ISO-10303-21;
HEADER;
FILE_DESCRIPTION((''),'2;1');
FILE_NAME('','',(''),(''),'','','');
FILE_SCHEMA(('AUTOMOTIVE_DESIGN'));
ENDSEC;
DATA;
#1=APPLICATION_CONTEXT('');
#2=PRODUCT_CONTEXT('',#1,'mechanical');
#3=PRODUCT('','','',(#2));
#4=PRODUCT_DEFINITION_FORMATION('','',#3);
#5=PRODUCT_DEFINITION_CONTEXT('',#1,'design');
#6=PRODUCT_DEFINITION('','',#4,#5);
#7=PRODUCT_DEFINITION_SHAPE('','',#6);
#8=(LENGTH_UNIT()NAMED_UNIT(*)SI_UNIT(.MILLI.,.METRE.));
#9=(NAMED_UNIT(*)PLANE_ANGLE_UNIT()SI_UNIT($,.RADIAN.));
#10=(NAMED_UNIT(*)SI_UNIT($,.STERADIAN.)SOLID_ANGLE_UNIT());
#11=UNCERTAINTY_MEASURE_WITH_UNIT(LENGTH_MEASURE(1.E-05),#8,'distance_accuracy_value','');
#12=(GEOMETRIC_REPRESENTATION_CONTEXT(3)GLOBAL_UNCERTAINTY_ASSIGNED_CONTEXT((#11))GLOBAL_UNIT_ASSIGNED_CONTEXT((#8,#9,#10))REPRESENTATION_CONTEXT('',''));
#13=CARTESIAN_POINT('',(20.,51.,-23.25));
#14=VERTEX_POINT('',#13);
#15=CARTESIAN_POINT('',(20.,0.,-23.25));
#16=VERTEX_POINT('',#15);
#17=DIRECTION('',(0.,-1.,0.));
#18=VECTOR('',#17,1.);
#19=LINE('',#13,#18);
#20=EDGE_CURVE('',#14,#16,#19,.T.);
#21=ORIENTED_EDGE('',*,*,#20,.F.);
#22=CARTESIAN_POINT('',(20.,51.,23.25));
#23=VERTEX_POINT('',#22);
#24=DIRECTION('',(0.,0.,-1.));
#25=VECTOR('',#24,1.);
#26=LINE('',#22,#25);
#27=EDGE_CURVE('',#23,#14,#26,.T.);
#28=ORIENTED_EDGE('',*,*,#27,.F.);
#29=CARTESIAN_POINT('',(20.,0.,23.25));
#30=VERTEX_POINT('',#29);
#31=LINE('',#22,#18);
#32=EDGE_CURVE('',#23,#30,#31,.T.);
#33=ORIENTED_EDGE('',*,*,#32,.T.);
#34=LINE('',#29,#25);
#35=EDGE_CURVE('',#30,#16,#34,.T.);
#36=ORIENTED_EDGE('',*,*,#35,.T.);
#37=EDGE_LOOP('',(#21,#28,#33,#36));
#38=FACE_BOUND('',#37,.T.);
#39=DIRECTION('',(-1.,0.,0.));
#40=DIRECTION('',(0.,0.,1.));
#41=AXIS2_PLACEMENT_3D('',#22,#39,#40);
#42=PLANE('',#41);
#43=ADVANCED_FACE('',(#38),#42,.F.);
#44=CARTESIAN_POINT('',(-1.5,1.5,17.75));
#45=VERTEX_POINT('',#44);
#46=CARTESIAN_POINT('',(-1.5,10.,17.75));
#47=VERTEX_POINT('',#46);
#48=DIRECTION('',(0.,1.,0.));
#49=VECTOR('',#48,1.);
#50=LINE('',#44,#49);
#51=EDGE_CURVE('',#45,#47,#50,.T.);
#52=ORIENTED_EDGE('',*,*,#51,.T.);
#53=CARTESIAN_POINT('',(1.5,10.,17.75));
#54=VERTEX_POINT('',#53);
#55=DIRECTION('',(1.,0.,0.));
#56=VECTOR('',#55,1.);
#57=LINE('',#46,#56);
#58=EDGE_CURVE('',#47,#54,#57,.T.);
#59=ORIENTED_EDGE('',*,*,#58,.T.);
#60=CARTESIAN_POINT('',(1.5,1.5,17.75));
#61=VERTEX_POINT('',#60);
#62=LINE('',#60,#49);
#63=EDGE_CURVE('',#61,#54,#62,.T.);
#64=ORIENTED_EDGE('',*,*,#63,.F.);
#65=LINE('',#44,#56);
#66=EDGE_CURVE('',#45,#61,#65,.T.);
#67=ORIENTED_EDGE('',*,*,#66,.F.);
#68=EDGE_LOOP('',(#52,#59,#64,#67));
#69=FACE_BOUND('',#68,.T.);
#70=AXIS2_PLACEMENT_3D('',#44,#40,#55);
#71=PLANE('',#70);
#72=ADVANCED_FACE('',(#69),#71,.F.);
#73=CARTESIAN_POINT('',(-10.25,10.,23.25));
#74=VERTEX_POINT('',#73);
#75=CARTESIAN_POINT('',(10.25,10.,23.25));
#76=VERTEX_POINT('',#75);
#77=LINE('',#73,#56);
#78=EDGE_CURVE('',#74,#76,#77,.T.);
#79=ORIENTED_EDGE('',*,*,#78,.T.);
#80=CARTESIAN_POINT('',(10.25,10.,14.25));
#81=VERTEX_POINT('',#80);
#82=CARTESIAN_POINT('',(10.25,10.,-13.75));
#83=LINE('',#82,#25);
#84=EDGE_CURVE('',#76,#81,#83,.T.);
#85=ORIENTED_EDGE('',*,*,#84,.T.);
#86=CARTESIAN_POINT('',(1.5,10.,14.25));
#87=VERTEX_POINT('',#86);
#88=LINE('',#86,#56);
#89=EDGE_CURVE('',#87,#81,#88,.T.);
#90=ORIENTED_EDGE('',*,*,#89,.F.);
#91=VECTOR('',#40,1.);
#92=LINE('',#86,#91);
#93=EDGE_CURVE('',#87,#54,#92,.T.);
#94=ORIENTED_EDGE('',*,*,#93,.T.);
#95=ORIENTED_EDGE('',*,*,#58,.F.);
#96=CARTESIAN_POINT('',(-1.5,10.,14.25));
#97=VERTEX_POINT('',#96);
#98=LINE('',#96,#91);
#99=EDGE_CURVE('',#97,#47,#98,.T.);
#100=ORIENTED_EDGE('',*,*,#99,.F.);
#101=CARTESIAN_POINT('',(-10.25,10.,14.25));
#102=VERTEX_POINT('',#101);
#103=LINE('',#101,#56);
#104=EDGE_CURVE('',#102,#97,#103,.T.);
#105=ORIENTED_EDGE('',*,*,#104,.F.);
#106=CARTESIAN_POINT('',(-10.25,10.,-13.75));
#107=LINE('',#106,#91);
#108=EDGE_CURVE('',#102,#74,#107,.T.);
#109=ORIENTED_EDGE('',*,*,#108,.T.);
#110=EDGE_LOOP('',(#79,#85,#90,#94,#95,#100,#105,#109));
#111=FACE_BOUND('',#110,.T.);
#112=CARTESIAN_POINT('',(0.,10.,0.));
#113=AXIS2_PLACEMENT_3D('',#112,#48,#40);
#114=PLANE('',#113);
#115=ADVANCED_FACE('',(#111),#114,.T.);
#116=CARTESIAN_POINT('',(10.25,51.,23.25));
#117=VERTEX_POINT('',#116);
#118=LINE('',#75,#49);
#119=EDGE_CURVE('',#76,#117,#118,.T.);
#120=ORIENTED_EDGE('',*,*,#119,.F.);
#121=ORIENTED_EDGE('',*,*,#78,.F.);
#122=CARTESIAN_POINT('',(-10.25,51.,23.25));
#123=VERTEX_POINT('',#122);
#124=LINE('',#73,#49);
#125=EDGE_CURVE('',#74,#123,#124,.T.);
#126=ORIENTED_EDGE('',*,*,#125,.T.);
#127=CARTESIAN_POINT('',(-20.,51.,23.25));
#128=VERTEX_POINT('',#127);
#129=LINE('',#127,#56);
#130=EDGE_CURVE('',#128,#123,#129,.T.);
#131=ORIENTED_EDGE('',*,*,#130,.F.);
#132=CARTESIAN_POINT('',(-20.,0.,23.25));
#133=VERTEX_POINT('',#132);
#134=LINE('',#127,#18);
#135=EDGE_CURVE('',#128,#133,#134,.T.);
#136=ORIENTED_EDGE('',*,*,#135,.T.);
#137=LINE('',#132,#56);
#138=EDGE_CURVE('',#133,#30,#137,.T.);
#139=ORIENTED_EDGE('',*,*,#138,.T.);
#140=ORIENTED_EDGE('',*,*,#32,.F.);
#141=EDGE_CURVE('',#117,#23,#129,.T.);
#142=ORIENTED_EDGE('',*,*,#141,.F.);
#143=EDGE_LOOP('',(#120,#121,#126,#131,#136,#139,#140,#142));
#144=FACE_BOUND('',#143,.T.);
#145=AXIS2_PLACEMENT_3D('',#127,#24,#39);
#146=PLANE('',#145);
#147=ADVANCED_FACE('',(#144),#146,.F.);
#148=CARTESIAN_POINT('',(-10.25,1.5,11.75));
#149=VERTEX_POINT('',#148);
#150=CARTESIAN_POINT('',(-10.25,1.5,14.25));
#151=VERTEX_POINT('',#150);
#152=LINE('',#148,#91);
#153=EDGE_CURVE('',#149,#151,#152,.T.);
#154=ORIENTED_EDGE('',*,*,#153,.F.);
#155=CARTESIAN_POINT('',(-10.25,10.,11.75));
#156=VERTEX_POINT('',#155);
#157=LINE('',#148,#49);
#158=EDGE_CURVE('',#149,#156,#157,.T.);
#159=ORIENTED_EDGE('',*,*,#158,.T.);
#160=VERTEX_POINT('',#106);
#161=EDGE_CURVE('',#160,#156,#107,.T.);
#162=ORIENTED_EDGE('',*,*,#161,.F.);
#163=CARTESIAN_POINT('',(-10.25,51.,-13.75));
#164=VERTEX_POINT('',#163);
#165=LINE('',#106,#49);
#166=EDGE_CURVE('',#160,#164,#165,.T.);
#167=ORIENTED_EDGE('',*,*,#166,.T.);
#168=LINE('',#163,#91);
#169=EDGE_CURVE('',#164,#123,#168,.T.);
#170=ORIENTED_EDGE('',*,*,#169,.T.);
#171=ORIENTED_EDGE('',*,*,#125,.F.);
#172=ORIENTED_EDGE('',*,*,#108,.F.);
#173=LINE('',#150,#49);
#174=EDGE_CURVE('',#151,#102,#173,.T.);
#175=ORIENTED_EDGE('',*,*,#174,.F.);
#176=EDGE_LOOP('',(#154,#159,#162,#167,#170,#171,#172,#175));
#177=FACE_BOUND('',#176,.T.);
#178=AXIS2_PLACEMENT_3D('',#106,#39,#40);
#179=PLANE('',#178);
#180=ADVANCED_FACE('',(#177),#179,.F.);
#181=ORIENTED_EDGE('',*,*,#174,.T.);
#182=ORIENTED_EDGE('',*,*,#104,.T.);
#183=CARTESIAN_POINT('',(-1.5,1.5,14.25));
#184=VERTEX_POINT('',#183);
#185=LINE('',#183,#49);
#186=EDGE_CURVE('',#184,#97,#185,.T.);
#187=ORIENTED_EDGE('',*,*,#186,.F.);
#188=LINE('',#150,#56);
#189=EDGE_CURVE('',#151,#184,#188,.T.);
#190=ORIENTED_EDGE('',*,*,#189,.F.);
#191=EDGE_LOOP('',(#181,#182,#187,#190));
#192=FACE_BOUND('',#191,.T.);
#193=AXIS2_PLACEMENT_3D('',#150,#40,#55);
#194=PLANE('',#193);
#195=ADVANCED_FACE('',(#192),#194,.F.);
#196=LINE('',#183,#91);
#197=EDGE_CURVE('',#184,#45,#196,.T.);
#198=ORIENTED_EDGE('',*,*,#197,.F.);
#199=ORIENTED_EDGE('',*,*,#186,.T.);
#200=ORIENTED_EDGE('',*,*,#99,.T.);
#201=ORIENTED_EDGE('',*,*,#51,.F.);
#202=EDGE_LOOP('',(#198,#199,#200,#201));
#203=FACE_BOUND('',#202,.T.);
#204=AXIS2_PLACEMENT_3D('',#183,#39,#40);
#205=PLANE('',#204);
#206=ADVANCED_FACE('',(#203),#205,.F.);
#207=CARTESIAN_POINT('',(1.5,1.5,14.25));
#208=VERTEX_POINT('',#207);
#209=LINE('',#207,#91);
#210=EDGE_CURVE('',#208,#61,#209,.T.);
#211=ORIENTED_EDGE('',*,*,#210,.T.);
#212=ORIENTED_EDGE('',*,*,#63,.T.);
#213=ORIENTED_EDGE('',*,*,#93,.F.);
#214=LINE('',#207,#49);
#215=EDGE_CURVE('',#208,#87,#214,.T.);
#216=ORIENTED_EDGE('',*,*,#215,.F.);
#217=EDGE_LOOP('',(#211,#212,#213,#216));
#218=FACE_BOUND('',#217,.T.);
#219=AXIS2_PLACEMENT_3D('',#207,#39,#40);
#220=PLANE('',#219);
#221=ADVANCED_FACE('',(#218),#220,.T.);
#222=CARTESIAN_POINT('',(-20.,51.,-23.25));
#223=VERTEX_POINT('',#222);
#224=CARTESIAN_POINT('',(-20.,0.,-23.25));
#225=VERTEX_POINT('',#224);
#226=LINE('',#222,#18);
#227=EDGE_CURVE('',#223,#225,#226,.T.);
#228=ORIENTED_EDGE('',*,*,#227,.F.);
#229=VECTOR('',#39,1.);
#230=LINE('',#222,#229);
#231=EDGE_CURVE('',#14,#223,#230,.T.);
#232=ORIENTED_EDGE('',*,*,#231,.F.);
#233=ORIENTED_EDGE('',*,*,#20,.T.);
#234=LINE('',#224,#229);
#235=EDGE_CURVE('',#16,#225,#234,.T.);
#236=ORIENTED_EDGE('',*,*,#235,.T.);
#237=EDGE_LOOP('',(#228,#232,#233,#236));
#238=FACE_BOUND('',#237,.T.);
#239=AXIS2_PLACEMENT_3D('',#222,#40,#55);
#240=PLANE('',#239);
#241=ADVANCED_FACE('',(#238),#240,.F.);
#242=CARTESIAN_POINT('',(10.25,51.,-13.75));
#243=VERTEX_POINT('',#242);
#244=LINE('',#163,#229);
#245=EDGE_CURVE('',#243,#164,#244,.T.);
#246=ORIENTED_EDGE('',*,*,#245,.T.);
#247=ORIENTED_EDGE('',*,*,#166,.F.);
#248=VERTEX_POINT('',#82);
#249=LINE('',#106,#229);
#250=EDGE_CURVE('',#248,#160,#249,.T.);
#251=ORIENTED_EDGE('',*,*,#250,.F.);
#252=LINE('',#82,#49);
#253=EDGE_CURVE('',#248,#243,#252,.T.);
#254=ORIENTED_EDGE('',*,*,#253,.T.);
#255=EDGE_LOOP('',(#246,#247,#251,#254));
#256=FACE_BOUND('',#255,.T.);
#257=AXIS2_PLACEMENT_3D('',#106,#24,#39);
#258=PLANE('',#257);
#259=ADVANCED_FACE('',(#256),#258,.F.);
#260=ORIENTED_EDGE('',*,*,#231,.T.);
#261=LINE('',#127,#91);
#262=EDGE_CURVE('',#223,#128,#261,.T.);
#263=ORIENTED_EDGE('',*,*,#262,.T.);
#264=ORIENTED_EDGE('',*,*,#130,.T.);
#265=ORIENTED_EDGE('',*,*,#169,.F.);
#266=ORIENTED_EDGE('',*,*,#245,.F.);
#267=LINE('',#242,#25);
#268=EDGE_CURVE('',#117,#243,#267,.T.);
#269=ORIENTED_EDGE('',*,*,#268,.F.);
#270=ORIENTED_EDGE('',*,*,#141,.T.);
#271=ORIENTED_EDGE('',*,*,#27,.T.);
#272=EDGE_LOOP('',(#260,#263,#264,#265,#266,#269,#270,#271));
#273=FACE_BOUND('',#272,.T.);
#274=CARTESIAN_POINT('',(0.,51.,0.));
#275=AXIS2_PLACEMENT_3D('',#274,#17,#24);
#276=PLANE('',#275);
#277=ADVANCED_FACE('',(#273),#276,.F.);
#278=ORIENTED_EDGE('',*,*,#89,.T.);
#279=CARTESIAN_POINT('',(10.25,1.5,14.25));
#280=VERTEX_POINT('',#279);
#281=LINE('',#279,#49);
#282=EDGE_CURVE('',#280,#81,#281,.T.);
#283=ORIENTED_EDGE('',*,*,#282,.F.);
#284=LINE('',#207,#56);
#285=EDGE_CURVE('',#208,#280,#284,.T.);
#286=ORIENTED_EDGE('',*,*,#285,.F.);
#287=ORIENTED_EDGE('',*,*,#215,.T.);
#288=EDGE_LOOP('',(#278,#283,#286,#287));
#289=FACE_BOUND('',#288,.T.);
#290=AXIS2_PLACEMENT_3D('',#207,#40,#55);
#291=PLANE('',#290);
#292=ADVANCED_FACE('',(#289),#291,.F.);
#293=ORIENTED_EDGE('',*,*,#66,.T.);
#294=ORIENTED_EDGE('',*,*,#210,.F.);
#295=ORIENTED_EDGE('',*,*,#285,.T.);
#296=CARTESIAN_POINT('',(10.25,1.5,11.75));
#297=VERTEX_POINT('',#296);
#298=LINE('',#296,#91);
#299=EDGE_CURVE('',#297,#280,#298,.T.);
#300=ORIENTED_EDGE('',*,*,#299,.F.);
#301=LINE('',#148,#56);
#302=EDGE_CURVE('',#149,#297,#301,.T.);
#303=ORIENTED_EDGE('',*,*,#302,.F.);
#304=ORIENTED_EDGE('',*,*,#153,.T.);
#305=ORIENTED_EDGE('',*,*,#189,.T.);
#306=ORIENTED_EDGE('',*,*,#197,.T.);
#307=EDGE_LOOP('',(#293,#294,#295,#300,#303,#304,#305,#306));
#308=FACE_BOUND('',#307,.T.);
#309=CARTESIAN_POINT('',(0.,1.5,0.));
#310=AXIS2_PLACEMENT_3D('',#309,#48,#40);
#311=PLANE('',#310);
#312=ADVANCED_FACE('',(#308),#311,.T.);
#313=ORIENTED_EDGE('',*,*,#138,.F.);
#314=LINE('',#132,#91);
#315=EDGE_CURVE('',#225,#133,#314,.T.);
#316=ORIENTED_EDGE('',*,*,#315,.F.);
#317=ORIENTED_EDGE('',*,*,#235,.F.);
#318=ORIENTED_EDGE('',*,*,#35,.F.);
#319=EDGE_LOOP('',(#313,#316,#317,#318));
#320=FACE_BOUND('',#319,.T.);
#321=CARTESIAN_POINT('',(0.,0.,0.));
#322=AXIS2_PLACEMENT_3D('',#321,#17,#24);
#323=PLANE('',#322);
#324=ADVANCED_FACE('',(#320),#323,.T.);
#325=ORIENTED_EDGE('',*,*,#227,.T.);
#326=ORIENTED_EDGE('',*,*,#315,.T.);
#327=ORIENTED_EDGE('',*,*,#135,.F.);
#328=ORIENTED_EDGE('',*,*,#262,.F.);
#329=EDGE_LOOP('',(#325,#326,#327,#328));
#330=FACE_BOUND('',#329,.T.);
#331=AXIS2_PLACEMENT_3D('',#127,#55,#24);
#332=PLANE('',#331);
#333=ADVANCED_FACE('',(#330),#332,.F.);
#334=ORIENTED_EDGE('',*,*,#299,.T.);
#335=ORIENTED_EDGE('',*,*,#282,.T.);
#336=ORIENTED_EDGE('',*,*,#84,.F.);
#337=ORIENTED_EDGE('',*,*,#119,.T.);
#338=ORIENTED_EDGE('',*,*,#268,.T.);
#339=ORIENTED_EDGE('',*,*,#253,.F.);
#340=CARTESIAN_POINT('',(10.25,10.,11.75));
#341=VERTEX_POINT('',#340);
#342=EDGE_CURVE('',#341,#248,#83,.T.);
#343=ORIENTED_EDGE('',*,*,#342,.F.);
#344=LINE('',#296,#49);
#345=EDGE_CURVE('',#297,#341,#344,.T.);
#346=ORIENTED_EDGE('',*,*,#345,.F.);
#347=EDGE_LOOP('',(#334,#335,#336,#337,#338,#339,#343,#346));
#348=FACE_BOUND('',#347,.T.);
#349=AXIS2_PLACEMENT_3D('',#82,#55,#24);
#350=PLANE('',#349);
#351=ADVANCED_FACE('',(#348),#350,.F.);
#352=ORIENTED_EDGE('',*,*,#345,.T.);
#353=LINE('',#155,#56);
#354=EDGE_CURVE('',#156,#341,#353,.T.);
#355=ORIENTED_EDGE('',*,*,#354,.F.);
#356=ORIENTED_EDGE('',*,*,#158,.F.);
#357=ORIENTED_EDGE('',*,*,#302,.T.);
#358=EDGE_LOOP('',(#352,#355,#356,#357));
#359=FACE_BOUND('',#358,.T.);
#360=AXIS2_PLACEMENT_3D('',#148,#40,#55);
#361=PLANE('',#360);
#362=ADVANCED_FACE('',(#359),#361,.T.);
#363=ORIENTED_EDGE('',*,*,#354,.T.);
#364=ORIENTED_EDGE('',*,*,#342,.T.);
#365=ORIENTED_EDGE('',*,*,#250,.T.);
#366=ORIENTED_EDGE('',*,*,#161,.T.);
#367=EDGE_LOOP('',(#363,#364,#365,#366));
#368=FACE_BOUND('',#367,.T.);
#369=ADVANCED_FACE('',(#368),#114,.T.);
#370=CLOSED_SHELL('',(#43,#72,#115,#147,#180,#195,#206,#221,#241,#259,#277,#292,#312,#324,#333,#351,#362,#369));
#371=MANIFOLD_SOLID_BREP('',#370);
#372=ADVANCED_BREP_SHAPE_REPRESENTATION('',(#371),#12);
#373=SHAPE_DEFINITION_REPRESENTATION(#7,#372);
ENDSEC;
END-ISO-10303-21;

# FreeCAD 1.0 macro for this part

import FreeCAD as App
import Part
import Sketcher
from FreeCAD import Vector

doc = App.newDocument("Part")
params = doc.addObject("Spreadsheet::Sheet", "Params")
for row, (alias, value) in enumerate([
    ("sketch1_width", "40 mm"),
    ("sketch1_height", "46.5 mm"),
    ("pad1_length", "51 mm"),
    ("sketch2_height", "37 mm"),
    ("sketch2_width", "20.5 mm"),
    ("pocket1_length", "41 mm"),
    ("sketch3_width", "3 mm"),
    ("sketch3_width2", "20.5 mm"),
    ("sketch3_height", "2.5 mm"),
    ("sketch3_height2", "3.5 mm"),
    ("pocket2_length", "8.5 mm"),
], start=1):
    params.set(f"A{row}", alias)
    params.set(f"B{row}", "=" + value)
    params.setAlias(f"B{row}", alias)

body = doc.addObject("PartDesign::Body", "Body")

sketch1 = body.newObject("Sketcher::SketchObject", "Sketch")
sketch1.AttachmentSupport = (doc.getObject("XZ_Plane"), [""])
sketch1.MapMode = "FlatFace"
sketch1.addGeometry([
    Part.LineSegment(Vector(-20, -23.25, 0), Vector(-20, 23.25, 0)),
    Part.LineSegment(Vector(-20, 23.25, 0), Vector(20, 23.25, 0)),
    Part.LineSegment(Vector(20, 23.25, 0), Vector(20, -23.25, 0)),
    Part.LineSegment(Vector(20, -23.25, 0), Vector(-20, -23.25, 0)),
], False)
sketch1.addConstraint([
    Sketcher.Constraint("Coincident", 0, 2, 1, 1),
    Sketcher.Constraint("Coincident", 1, 2, 2, 1),
    Sketcher.Constraint("Coincident", 2, 2, 3, 1),
    Sketcher.Constraint("Coincident", 3, 2, 0, 1),
    Sketcher.Constraint("Vertical", 0),
    Sketcher.Constraint("Horizontal", 1),
    Sketcher.Constraint("Vertical", 2),
    Sketcher.Constraint("Horizontal", 3),
    Sketcher.Constraint("Symmetric", 0, 2, 2, 2, -1, 1),
    Sketcher.Constraint("DistanceX", 1, 1, 1, 2, 40.0),
    Sketcher.Constraint("DistanceY", 0, 1, 0, 2, 46.5),
])
sketch1.setExpression("Constraints[9]", "Params.sketch1_width")
sketch1.setExpression("Constraints[10]", "Params.sketch1_height")
pad1 = body.newObject("PartDesign::Pad", "Pad")
pad1.Profile = sketch1
pad1.setExpression("Length", "Params.pad1_length")
pad1.Reversed = True

sketch2 = body.newObject("Sketcher::SketchObject", "Sketch001")
sketch2.AttachmentSupport = (doc.getObject("XZ_Plane"), [""])
sketch2.MapMode = "FlatFace"
sketch2.AttachmentOffset = App.Placement(Vector(0, 0, -51), App.Rotation())
sketch2.addGeometry([
    Part.LineSegment(Vector(-10.25, -13.75, 0), Vector(-10.25, 23.25, 0)),
    Part.LineSegment(Vector(-10.25, 23.25, 0), Vector(10.25, 23.25, 0)),
    Part.LineSegment(Vector(10.25, 23.25, 0), Vector(10.25, -13.75, 0)),
    Part.LineSegment(Vector(10.25, -13.75, 0), Vector(-10.25, -13.75, 0)),
], False)
sketch2.addConstraint([
    Sketcher.Constraint("Coincident", 0, 2, 1, 1),
    Sketcher.Constraint("Coincident", 1, 2, 2, 1),
    Sketcher.Constraint("Coincident", 2, 2, 3, 1),
    Sketcher.Constraint("Coincident", 3, 2, 0, 1),
    Sketcher.Constraint("Vertical", 0),
    Sketcher.Constraint("Horizontal", 1),
    Sketcher.Constraint("Vertical", 2),
    Sketcher.Constraint("Horizontal", 3),
    Sketcher.Constraint("DistanceY", 0, 1, 0, 2, 37.0),
    Sketcher.Constraint("DistanceX", 1, 1, 1, 2, 20.5),
    Sketcher.Constraint("DistanceX", 0, 2, -1, 1, 10.25),
    Sketcher.Constraint("DistanceY", -1, 1, 0, 2, 23.25),
])
sketch2.setExpression("Constraints[8]", "Params.sketch2_height")
sketch2.setExpression("Constraints[9]", "Params.sketch2_width")
pocket1 = body.newObject("PartDesign::Pocket", "Pocket")
pocket1.Profile = sketch2
pocket1.setExpression("Length", "Params.pocket1_length")
pocket1.Reversed = True

sketch3 = body.newObject("Sketcher::SketchObject", "Sketch002")
sketch3.AttachmentSupport = (doc.getObject("XZ_Plane"), [""])
sketch3.MapMode = "FlatFace"
sketch3.AttachmentOffset = App.Placement(Vector(0, 0, -10), App.Rotation())
sketch3.addGeometry([
    Part.LineSegment(Vector(10.25, 11.75, 0), Vector(-10.25, 11.75, 0)),
    Part.LineSegment(Vector(-10.25, 11.75, 0), Vector(-10.25, 14.25, 0)),
    Part.LineSegment(Vector(-10.25, 14.25, 0), Vector(-1.5, 14.25, 0)),
    Part.LineSegment(Vector(-1.5, 14.25, 0), Vector(-1.5, 17.75, 0)),
    Part.LineSegment(Vector(-1.5, 17.75, 0), Vector(1.5, 17.75, 0)),
    Part.LineSegment(Vector(1.5, 17.75, 0), Vector(1.5, 14.25, 0)),
    Part.LineSegment(Vector(1.5, 14.25, 0), Vector(10.25, 14.25, 0)),
    Part.LineSegment(Vector(10.25, 14.25, 0), Vector(10.25, 11.75, 0)),
], False)
sketch3.addConstraint([
    Sketcher.Constraint("Coincident", 0, 2, 1, 1),
    Sketcher.Constraint("Coincident", 1, 2, 2, 1),
    Sketcher.Constraint("Coincident", 2, 2, 3, 1),
    Sketcher.Constraint("Coincident", 3, 2, 4, 1),
    Sketcher.Constraint("Coincident", 4, 2, 5, 1),
    Sketcher.Constraint("Coincident", 5, 2, 6, 1),
    Sketcher.Constraint("Coincident", 6, 2, 7, 1),
    Sketcher.Constraint("Coincident", 7, 2, 0, 1),
    Sketcher.Constraint("Horizontal", 0),
    Sketcher.Constraint("Vertical", 1),
    Sketcher.Constraint("Horizontal", 2),
    Sketcher.Constraint("Vertical", 3),
    Sketcher.Constraint("Horizontal", 4),
    Sketcher.Constraint("Vertical", 5),
    Sketcher.Constraint("Horizontal", 6),
    Sketcher.Constraint("Vertical", 7),
    Sketcher.Constraint("Symmetric", 2, 2, 5, 2, -2),
    Sketcher.Constraint("Equal", 2, 6),
    Sketcher.Constraint("DistanceX", 4, 1, 4, 2, 3.0),
    Sketcher.Constraint("DistanceX", 0, 2, 0, 1, 20.5),
    Sketcher.Constraint("DistanceY", 1, 1, 1, 2, 2.5),
    Sketcher.Constraint("DistanceY", 3, 1, 3, 2, 3.5),
    Sketcher.Constraint("DistanceY", -1, 1, 0, 2, 11.75),
])
sketch3.setExpression("Constraints[18]", "Params.sketch3_width")
sketch3.setExpression("Constraints[19]", "Params.sketch3_width2")
sketch3.setExpression("Constraints[20]", "Params.sketch3_height")
sketch3.setExpression("Constraints[21]", "Params.sketch3_height2")
pocket2 = body.newObject("PartDesign::Pocket", "Pocket001")
pocket2.Profile = sketch3
pocket2.setExpression("Length", "Params.pocket2_length")
pocket2.Reversed = True

doc.recompute()
